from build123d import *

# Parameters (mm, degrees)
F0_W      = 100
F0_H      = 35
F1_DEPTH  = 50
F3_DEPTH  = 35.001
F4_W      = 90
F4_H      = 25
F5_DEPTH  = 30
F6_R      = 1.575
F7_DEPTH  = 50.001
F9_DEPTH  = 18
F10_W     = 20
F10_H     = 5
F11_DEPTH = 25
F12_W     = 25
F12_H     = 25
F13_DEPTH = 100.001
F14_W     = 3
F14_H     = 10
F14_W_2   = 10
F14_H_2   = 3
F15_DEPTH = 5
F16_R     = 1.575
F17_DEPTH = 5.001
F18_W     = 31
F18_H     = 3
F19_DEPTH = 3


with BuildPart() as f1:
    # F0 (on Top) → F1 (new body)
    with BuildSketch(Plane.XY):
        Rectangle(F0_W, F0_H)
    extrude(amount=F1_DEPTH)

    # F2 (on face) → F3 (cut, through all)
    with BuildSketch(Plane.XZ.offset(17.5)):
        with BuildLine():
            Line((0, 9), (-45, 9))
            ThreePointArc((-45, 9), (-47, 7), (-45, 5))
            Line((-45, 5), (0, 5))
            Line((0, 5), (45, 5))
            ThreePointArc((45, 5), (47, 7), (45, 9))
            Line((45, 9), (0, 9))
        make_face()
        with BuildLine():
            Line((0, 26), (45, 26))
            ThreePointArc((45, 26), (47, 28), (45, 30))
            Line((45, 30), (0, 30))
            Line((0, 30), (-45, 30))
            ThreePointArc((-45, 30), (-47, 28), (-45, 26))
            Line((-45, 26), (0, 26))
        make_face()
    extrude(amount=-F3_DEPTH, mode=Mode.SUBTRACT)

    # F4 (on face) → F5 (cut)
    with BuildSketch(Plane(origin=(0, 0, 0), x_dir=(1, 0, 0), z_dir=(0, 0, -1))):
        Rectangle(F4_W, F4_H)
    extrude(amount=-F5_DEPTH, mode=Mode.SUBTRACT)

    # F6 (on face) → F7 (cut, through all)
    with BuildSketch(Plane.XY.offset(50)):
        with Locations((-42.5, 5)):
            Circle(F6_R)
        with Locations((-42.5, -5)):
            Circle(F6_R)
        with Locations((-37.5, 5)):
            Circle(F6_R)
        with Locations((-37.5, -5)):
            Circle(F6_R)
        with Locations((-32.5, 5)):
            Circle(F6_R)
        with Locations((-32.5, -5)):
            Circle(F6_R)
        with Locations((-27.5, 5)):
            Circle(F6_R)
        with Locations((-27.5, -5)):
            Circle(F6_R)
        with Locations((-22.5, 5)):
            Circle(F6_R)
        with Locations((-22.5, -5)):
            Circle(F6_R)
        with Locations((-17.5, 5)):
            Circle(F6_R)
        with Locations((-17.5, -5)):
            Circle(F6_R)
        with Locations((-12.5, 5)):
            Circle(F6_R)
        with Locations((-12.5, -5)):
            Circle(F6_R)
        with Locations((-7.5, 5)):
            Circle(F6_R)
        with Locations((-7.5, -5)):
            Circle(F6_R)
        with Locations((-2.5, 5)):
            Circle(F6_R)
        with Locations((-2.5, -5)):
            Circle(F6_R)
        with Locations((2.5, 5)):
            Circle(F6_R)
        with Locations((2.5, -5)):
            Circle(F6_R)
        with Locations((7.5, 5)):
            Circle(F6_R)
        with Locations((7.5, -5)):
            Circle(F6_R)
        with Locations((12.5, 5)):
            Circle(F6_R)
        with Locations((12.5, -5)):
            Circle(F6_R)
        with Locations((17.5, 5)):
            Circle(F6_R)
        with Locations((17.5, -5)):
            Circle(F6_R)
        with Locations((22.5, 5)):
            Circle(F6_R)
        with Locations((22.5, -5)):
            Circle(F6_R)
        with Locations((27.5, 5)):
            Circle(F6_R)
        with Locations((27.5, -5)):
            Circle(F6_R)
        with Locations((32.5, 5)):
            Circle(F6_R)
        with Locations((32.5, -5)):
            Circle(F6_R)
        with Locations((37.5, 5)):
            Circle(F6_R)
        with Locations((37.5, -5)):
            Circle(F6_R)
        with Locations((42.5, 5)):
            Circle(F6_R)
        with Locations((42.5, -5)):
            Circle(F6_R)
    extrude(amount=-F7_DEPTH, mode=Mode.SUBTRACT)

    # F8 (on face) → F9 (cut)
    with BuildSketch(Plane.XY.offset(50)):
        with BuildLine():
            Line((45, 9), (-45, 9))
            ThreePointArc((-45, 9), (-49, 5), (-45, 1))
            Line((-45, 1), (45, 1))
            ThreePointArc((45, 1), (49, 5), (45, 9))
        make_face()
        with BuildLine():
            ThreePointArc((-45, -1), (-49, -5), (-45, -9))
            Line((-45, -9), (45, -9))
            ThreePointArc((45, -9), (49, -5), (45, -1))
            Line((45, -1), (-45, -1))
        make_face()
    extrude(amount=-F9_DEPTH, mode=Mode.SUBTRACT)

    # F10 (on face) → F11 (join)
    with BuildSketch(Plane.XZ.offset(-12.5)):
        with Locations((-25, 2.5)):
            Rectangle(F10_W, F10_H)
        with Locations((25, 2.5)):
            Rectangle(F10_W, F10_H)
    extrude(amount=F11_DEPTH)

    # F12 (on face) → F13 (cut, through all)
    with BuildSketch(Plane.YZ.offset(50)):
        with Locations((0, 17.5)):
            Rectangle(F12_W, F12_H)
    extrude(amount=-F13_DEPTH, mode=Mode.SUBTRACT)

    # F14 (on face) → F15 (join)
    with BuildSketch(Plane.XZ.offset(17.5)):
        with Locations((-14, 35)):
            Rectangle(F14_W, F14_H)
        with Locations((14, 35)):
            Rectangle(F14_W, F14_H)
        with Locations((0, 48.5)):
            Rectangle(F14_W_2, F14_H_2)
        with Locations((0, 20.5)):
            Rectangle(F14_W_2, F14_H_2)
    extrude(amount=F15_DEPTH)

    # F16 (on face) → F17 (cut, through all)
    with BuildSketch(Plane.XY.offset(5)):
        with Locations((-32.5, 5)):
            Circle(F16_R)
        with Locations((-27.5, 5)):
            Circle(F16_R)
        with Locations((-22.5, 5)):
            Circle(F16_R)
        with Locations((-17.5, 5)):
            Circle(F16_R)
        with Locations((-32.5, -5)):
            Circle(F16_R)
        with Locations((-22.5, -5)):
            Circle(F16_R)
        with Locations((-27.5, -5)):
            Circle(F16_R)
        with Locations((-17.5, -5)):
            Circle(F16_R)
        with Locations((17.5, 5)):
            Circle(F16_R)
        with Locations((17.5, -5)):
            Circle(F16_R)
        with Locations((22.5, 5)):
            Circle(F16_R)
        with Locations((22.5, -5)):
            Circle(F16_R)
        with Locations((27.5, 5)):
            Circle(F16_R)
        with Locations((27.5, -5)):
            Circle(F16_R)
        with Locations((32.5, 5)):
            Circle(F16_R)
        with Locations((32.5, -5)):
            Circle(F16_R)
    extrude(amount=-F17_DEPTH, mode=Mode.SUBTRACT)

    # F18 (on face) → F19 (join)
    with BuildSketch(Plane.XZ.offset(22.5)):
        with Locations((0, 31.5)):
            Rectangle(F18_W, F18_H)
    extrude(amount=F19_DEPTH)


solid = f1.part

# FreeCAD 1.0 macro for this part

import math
import FreeCAD as App
import Part
import Sketcher
from FreeCAD import Vector
Q = App.Units.Quantity

doc = App.newDocument("Part")
body = doc.addObject("PartDesign::Body", "Body")

# Sketch on XY plane
sketch1 = doc.addObject("Sketcher::SketchObject", "Sketch")
body.addObject(sketch1)
sketch1.AttachmentSupport = (doc.XY_Plane, [""])
sketch1.MapMode = "FlatFace"
sketch1.addGeometry([
    Part.LineSegment(Vector(-50, 18, 0), Vector(-50, -18, 0)),
    Part.LineSegment(Vector(-50, -18, 0), Vector(50, -18, 0)),
    Part.LineSegment(Vector(50, -18, 0), Vector(50, 18, 0)),
    Part.LineSegment(Vector(50, 18, 0), Vector(-50, 18, 0)),
], False)
sketch1.addConstraint([
    Sketcher.Constraint("Coincident", 0, 2, 1, 1),
    Sketcher.Constraint("Coincident", 1, 2, 2, 1),
    Sketcher.Constraint("Coincident", 2, 2, 3, 1),
    Sketcher.Constraint("Coincident", 3, 2, 0, 1),
    Sketcher.Constraint("Vertical", 0),
    Sketcher.Constraint("Horizontal", 1),
    Sketcher.Constraint("Vertical", 2),
    Sketcher.Constraint("Horizontal", 3),
    Sketcher.Constraint("Symmetric", 0, 2, 2, 2, -1, 1),
    Sketcher.Constraint("DistanceX", 1, 1, 1, 2, Q("100 mm")),
    Sketcher.Constraint("DistanceY", 0, 2, 0, 1, Q("35 mm")),
])
pad1 = doc.addObject("PartDesign::Pad", "Pad")
body.addObject(pad1)
pad1.Profile = sketch1
pad1.Length = 50

# Sketch on XZ plane
sketch2 = doc.addObject("Sketcher::SketchObject", "Sketch001")
body.addObject(sketch2)
sketch2.AttachmentSupport = (doc.XZ_Plane, [""])
sketch2.MapMode = "FlatFace"
sketch2.AttachmentOffset = App.Placement(Vector(0, 0, 17.5), App.Rotation())
sketch2.addGeometry([
    Part.ArcOfCircle(Part.Circle(Vector(-45, 7, 0), Vector(0, 0, 1), 2), math.radians(90), math.radians(270)),  # 0
    Part.LineSegment(Vector(-45, 5, 0), Vector(45, 5, 0)),  # 1
    Part.ArcOfCircle(Part.Circle(Vector(45, 7, 0), Vector(0, 0, 1), 2), math.radians(-90), math.radians(90)),  # 2
    Part.LineSegment(Vector(45, 9, 0), Vector(-45, 9, 0)),  # 3
    Part.ArcOfCircle(Part.Circle(Vector(45, 28, 0), Vector(0, 0, 1), 2), math.radians(-90), math.radians(90)),  # 4
    Part.LineSegment(Vector(45, 30, 0), Vector(-45, 30, 0)),  # 5
    Part.ArcOfCircle(Part.Circle(Vector(-45, 28, 0), Vector(0, 0, 1), 2), math.radians(90), math.radians(270)),  # 6
    Part.LineSegment(Vector(-45, 26, 0), Vector(45, 26, 0)),  # 7
], False)
sketch2.addConstraint([
    Sketcher.Constraint("Tangent", 0, 2, 1, 1),
    Sketcher.Constraint("Tangent", 1, 2, 2, 1),
    Sketcher.Constraint("Tangent", 2, 2, 3, 1),
    Sketcher.Constraint("Tangent", 3, 2, 0, 1),
    Sketcher.Constraint("Tangent", 4, 2, 5, 1),
    Sketcher.Constraint("Tangent", 5, 2, 6, 1),
    Sketcher.Constraint("Tangent", 6, 2, 7, 1),
    Sketcher.Constraint("Tangent", 7, 2, 4, 1),
    Sketcher.Constraint("Horizontal", 1),
    Sketcher.Constraint("Horizontal", 3),
    Sketcher.Constraint("Horizontal", 5),
    Sketcher.Constraint("Horizontal", 7),
    Sketcher.Constraint("Equal", 2, 4),
    Sketcher.Constraint("Vertical", 2, 3, 4, 3),
    Sketcher.Constraint("Vertical", 0, 3, 6, 3),
    Sketcher.Constraint("Radius", 0, Q("2 mm")),
    Sketcher.Constraint("DistanceX", 1, 1, 1, 2, Q("90 mm")),
    Sketcher.Constraint("DistanceX", 0, 3, -1, 1, Q("45 mm")),
    Sketcher.Constraint("DistanceY", -1, 1, 0, 3, Q("7 mm")),
    Sketcher.Constraint("DistanceY", -1, 1, 4, 3, Q("28 mm")),
])
pocket1 = doc.addObject("PartDesign::Pocket", "Pocket")
body.addObject(pocket1)
pocket1.Profile = sketch2
pocket1.Type = "ThroughAll"

# Sketch on XY plane
sketch3 = doc.addObject("Sketcher::SketchObject", "Sketch002")
body.addObject(sketch3)
sketch3.AttachmentSupport = (doc.XY_Plane, [""])
sketch3.MapMode = "FlatFace"
sketch3.addGeometry([
    Part.LineSegment(Vector(-45, -12, 0), Vector(-45, 12, 0)),
    Part.LineSegment(Vector(-45, 12, 0), Vector(45, 12, 0)),
    Part.LineSegment(Vector(45, 12, 0), Vector(45, -12, 0)),
    Part.LineSegment(Vector(45, -12, 0), Vector(-45, -12, 0)),
], False)
sketch3.addConstraint([
    Sketcher.Constraint("Coincident", 0, 2, 1, 1),
    Sketcher.Constraint("Coincident", 1, 2, 2, 1),
    Sketcher.Constraint("Coincident", 2, 2, 3, 1),
    Sketcher.Constraint("Coincident", 3, 2, 0, 1),
    Sketcher.Constraint("Vertical", 0),
    Sketcher.Constraint("Horizontal", 1),
    Sketcher.Constraint("Vertical", 2),
    Sketcher.Constraint("Horizontal", 3),
    Sketcher.Constraint("Symmetric", 0, 2, 2, 2, -1, 1),
    Sketcher.Constraint("DistanceX", 1, 1, 1, 2, Q("90 mm")),
    Sketcher.Constraint("DistanceY", 0, 1, 0, 2, Q("25 mm")),
])
pocket2 = doc.addObject("PartDesign::Pocket", "Pocket001")
body.addObject(pocket2)
pocket2.Profile = sketch3
pocket2.Length = 30
pocket2.Reversed = True

# Sketch on XY plane
sketch4 = doc.addObject("Sketcher::SketchObject", "Sketch003")
body.addObject(sketch4)
sketch4.AttachmentSupport = (doc.XY_Plane, [""])
sketch4.MapMode = "FlatFace"
sketch4.AttachmentOffset = App.Placement(Vector(0, 0, 50), App.Rotation())
sketch4.addGeometry([
    Part.Circle(Vector(-42.5, 5, 0), Vector(0, 0, 1), 1.6),  # 0
    Part.Circle(Vector(-42.5, -5, 0), Vector(0, 0, 1), 1.6),  # 1
    Part.Circle(Vector(-37.5, 5, 0), Vector(0, 0, 1), 1.6),  # 2
    Part.Circle(Vector(-37.5, -5, 0), Vector(0, 0, 1), 1.6),  # 3
    Part.Circle(Vector(-32.5, 5, 0), Vector(0, 0, 1), 1.6),  # 4
    Part.Circle(Vector(-32.5, -5, 0), Vector(0, 0, 1), 1.6),  # 5
    Part.Circle(Vector(-27.5, 5, 0), Vector(0, 0, 1), 1.6),  # 6
    Part.Circle(Vector(-27.5, -5, 0), Vector(0, 0, 1), 1.6),  # 7
    Part.Circle(Vector(-22.5, 5, 0), Vector(0, 0, 1), 1.6),  # 8
    Part.Circle(Vector(-22.5, -5, 0), Vector(0, 0, 1), 1.6),  # 9
    Part.Circle(Vector(-17.5, 5, 0), Vector(0, 0, 1), 1.6),  # 10
    Part.Circle(Vector(-17.5, -5, 0), Vector(0, 0, 1), 1.6),  # 11
    Part.Circle(Vector(-12.5, 5, 0), Vector(0, 0, 1), 1.6),  # 12
    Part.Circle(Vector(-12.5, -5, 0), Vector(0, 0, 1), 1.6),  # 13
    Part.Circle(Vector(-7.5, 5, 0), Vector(0, 0, 1), 1.6),  # 14
    Part.Circle(Vector(-7.5, -5, 0), Vector(0, 0, 1), 1.6),  # 15
    Part.Circle(Vector(-2.5, 5, 0), Vector(0, 0, 1), 1.6),  # 16
    Part.Circle(Vector(-2.5, -5, 0), Vector(0, 0, 1), 1.6),  # 17
    Part.Circle(Vector(2.5, 5, 0), Vector(0, 0, 1), 1.6),  # 18
    Part.Circle(Vector(2.5, -5, 0), Vector(0, 0, 1), 1.6),  # 19
    Part.Circle(Vector(7.5, 5, 0), Vector(0, 0, 1), 1.6),  # 20
    Part.Circle(Vector(7.5, -5, 0), Vector(0, 0, 1), 1.6),  # 21
    Part.Circle(Vector(12.5, 5, 0), Vector(0, 0, 1), 1.6),  # 22
    Part.Circle(Vector(12.5, -5, 0), Vector(0, 0, 1), 1.6),  # 23
    Part.Circle(Vector(17.5, 5, 0), Vector(0, 0, 1), 1.6),  # 24
    Part.Circle(Vector(17.5, -5, 0), Vector(0, 0, 1), 1.6),  # 25
    Part.Circle(Vector(22.5, 5, 0), Vector(0, 0, 1), 1.6),  # 26
    Part.Circle(Vector(22.5, -5, 0), Vector(0, 0, 1), 1.6),  # 27
    Part.Circle(Vector(27.5, 5, 0), Vector(0, 0, 1), 1.6),  # 28
    Part.Circle(Vector(27.5, -5, 0), Vector(0, 0, 1), 1.6),  # 29
    Part.Circle(Vector(32.5, 5, 0), Vector(0, 0, 1), 1.6),  # 30
    Part.Circle(Vector(32.5, -5, 0), Vector(0, 0, 1), 1.6),  # 31
    Part.Circle(Vector(37.5, 5, 0), Vector(0, 0, 1), 1.6),  # 32
    Part.Circle(Vector(37.5, -5, 0), Vector(0, 0, 1), 1.6),  # 33
    Part.Circle(Vector(42.5, 5, 0), Vector(0, 0, 1), 1.6),  # 34
    Part.Circle(Vector(42.5, -5, 0), Vector(0, 0, 1), 1.6),  # 35
], False)
sketch4.addConstraint([
    Sketcher.Constraint("Equal", 0, 1),
    Sketcher.Constraint("Equal", 1, 2),
    Sketcher.Constraint("Equal", 2, 3),
    Sketcher.Constraint("Equal", 3, 4),
    Sketcher.Constraint("Equal", 4, 5),
    Sketcher.Constraint("Equal", 5, 6),
    Sketcher.Constraint("Equal", 6, 7),
    Sketcher.Constraint("Equal", 7, 8),
    Sketcher.Constraint("Equal", 8, 9),
    Sketcher.Constraint("Equal", 9, 10),
    Sketcher.Constraint("Equal", 10, 11),
    Sketcher.Constraint("Equal", 11, 12),
    Sketcher.Constraint("Equal", 12, 13),
    Sketcher.Constraint("Equal", 13, 14),
    Sketcher.Constraint("Equal", 14, 15),
    Sketcher.Constraint("Equal", 15, 16),
    Sketcher.Constraint("Equal", 16, 17),
    Sketcher.Constraint("Equal", 17, 18),
    Sketcher.Constraint("Equal", 18, 19),
    Sketcher.Constraint("Equal", 19, 20),
    Sketcher.Constraint("Equal", 20, 21),
    Sketcher.Constraint("Equal", 21, 22),
    Sketcher.Constraint("Equal", 22, 23),
    Sketcher.Constraint("Equal", 23, 24),
    Sketcher.Constraint("Equal", 24, 25),
    Sketcher.Constraint("Equal", 25, 26),
    Sketcher.Constraint("Equal", 26, 27),
    Sketcher.Constraint("Equal", 27, 28),
    Sketcher.Constraint("Equal", 28, 29),
    Sketcher.Constraint("Equal", 29, 30),
    Sketcher.Constraint("Equal", 30, 31),
    Sketcher.Constraint("Equal", 31, 32),
    Sketcher.Constraint("Equal", 32, 33),
    Sketcher.Constraint("Equal", 33, 34),
    Sketcher.Constraint("Equal", 34, 35),
    Sketcher.Constraint("Symmetric", 17, 3, 18, 3, -1, 1),
    Sketcher.Constraint("Symmetric", 16, 3, 19, 3, -1, 1),
    Sketcher.Constraint("Symmetric", 15, 3, 20, 3, -1, 1),
    Sketcher.Constraint("Symmetric", 14, 3, 21, 3, -1, 1),
    Sketcher.Constraint("Symmetric", 13, 3, 22, 3, -1, 1),
    Sketcher.Constraint("Symmetric", 12, 3, 23, 3, -1, 1),
    Sketcher.Constraint("Symmetric", 11, 3, 24, 3, -1, 1),
    Sketcher.Constraint("Symmetric", 10, 3, 25, 3, -1, 1),
    Sketcher.Constraint("Symmetric", 9, 3, 26, 3, -1, 1),
    Sketcher.Constraint("Symmetric", 8, 3, 27, 3, -1, 1),
    Sketcher.Constraint("Symmetric", 7, 3, 28, 3, -1, 1),
    Sketcher.Constraint("Symmetric", 6, 3, 29, 3, -1, 1),
    Sketcher.Constraint("Symmetric", 5, 3, 30, 3, -1, 1),
    Sketcher.Constraint("Symmetric", 4, 3, 31, 3, -1, 1),
    Sketcher.Constraint("Symmetric", 3, 3, 32, 3, -1, 1),
    Sketcher.Constraint("Symmetric", 2, 3, 33, 3, -1, 1),
    Sketcher.Constraint("Symmetric", 1, 3, 34, 3, -1, 1),
    Sketcher.Constraint("Symmetric", 0, 3, 35, 3, -1, 1),
    Sketcher.Constraint("Symmetric", 16, 3, 18, 3, -2),
    Sketcher.Constraint("Symmetric", 14, 3, 20, 3, -2),
    Sketcher.Constraint("Symmetric", 12, 3, 22, 3, -2),
    Sketcher.Constraint("Symmetric", 10, 3, 24, 3, -2),
    Sketcher.Constraint("Symmetric", 8, 3, 26, 3, -2),
    Sketcher.Constraint("Symmetric", 6, 3, 28, 3, -2),
    Sketcher.Constraint("Symmetric", 4, 3, 30, 3, -2),
    Sketcher.Constraint("Symmetric", 2, 3, 32, 3, -2),
    Sketcher.Constraint("Symmetric", 0, 3, 34, 3, -2),
    Sketcher.Constraint("Horizontal", 0, 3, 2, 3),
    Sketcher.Constraint("Horizontal", 2, 3, 4, 3),
    Sketcher.Constraint("Horizontal", 4, 3, 6, 3),
    Sketcher.Constraint("Horizontal", 6, 3, 8, 3),
    Sketcher.Constraint("Horizontal", 8, 3, 10, 3),
    Sketcher.Constraint("Horizontal", 10, 3, 12, 3),
    Sketcher.Constraint("Horizontal", 12, 3, 14, 3),
    Sketcher.Constraint("Horizontal", 14, 3, 16, 3),
    Sketcher.Constraint("Diameter", 0, Q("3.15 mm")),
    Sketcher.Constraint("DistanceY", -1, 1, 0, 3, Q("5 mm")),
    Sketcher.Constraint("DistanceX", 0, 3, 2, 3, Q("5 mm")),
    Sketcher.Constraint("DistanceX", 2, 3, 4, 3, Q("5 mm")),
    Sketcher.Constraint("DistanceX", 4, 3, 6, 3, Q("5 mm")),
    Sketcher.Constraint("DistanceX", 6, 3, 8, 3, Q("5 mm")),
    Sketcher.Constraint("DistanceX", 8, 3, 10, 3, Q("5 mm")),
    Sketcher.Constraint("DistanceX", 10, 3, 12, 3, Q("5 mm")),
    Sketcher.Constraint("DistanceX", 12, 3, 14, 3, Q("5 mm")),
    Sketcher.Constraint("DistanceX", 14, 3, 16, 3, Q("5 mm")),
    Sketcher.Constraint("DistanceX", 16, 3, 18, 3, Q("5 mm")),
])
pocket3 = doc.addObject("PartDesign::Pocket", "Pocket002")
body.addObject(pocket3)
pocket3.Profile = sketch4
pocket3.Type = "ThroughAll"

# Sketch on XY plane
sketch5 = doc.addObject("Sketcher::SketchObject", "Sketch004")
body.addObject(sketch5)
sketch5.AttachmentSupport = (doc.XY_Plane, [""])
sketch5.MapMode = "FlatFace"
sketch5.AttachmentOffset = App.Placement(Vector(0, 0, 50), App.Rotation())
sketch5.addGeometry([
    Part.LineSegment(Vector(45, 9, 0), Vector(-45, 9, 0)),  # 0
    Part.ArcOfCircle(Part.Circle(Vector(-45, 5, 0), Vector(0, 0, 1), 4), math.radians(90), math.radians(270)),  # 1
    Part.LineSegment(Vector(-45, 1, 0), Vector(45, 1, 0)),  # 2
    Part.ArcOfCircle(Part.Circle(Vector(45, 5, 0), Vector(0, 0, 1), 4), math.radians(-90), math.radians(90)),  # 3
    Part.ArcOfCircle(Part.Circle(Vector(-45, -5, 0), Vector(0, 0, 1), 4), math.radians(90), math.radians(270)),  # 4
    Part.LineSegment(Vector(-45, -9, 0), Vector(45, -9, 0)),  # 5
    Part.ArcOfCircle(Part.Circle(Vector(45, -5, 0), Vector(0, 0, 1), 4), math.radians(-90), math.radians(90)),  # 6
    Part.LineSegment(Vector(45, -1, 0), Vector(-45, -1, 0)),  # 7
], False)
sketch5.addConstraint([
    Sketcher.Constraint("Tangent", 0, 2, 1, 1),
    Sketcher.Constraint("Tangent", 1, 2, 2, 1),
    Sketcher.Constraint("Tangent", 2, 2, 3, 1),
    Sketcher.Constraint("Tangent", 3, 2, 0, 1),
    Sketcher.Constraint("Tangent", 4, 2, 5, 1),
    Sketcher.Constraint("Tangent", 5, 2, 6, 1),
    Sketcher.Constraint("Tangent", 6, 2, 7, 1),
    Sketcher.Constraint("Tangent", 7, 2, 4, 1),
    Sketcher.Constraint("Horizontal", 0),
    Sketcher.Constraint("Horizontal", 2),
    Sketcher.Constraint("Horizontal", 5),
    Sketcher.Constraint("Horizontal", 7),
    Sketcher.Constraint("Equal", 3, 4),
    Sketcher.Constraint("Symmetric", 3, 3, 4, 3, -1, 1),
    Sketcher.Constraint("Vertical", 1, 3, 4, 3),
    Sketcher.Constraint("Vertical", 3, 3, 6, 3),
    Sketcher.Constraint("Radius", 1, Q("4 mm")),
    Sketcher.Constraint("DistanceX", 0, 2, 0, 1, Q("90 mm")),
    Sketcher.Constraint("DistanceY", -1, 1, 1, 3, Q("5 mm")),
])
pocket4 = doc.addObject("PartDesign::Pocket", "Pocket003")
body.addObject(pocket4)
pocket4.Profile = sketch5
pocket4.Length = 18

# Sketch on XZ plane
sketch6 = doc.addObject("Sketcher::SketchObject", "Sketch005")
body.addObject(sketch6)
sketch6.AttachmentSupport = (doc.XZ_Plane, [""])
sketch6.MapMode = "FlatFace"
sketch6.AttachmentOffset = App.Placement(Vector(0, 0, -12.5), App.Rotation())
sketch6.addGeometry([
    Part.LineSegment(Vector(-35, 5, 0), Vector(-35, 0, 0)),  # 0
    Part.LineSegment(Vector(-35, 0, 0), Vector(-15, 0, 0)),  # 1
    Part.LineSegment(Vector(-15, 0, 0), Vector(-15, 5, 0)),  # 2
    Part.LineSegment(Vector(-15, 5, 0), Vector(-35, 5, 0)),  # 3
    Part.LineSegment(Vector(15, 5, 0), Vector(15, 0, 0)),  # 4
    Part.LineSegment(Vector(15, 0, 0), Vector(35, 0, 0)),  # 5
    Part.LineSegment(Vector(35, 0, 0), Vector(35, 5, 0)),  # 6
    Part.LineSegment(Vector(35, 5, 0), Vector(15, 5, 0)),  # 7
], False)
sketch6.addConstraint([
    Sketcher.Constraint("Coincident", 0, 2, 1, 1),
    Sketcher.Constraint("Coincident", 1, 2, 2, 1),
    Sketcher.Constraint("Coincident", 2, 2, 3, 1),
    Sketcher.Constraint("Coincident", 3, 2, 0, 1),
    Sketcher.Constraint("Coincident", 4, 2, 5, 1),
    Sketcher.Constraint("Coincident", 5, 2, 6, 1),
    Sketcher.Constraint("Coincident", 6, 2, 7, 1),
    Sketcher.Constraint("Coincident", 7, 2, 4, 1),
    Sketcher.Constraint("Vertical", 0),
    Sketcher.Constraint("Horizontal", 1),
    Sketcher.Constraint("Vertical", 2),
    Sketcher.Constraint("Horizontal", 3),
    Sketcher.Constraint("Vertical", 4),
    Sketcher.Constraint("Horizontal", 5),
    Sketcher.Constraint("Vertical", 6),
    Sketcher.Constraint("Horizontal", 7),
    Sketcher.Constraint("Symmetric", 1, 2, 4, 2, -1, 1),
    Sketcher.Constraint("Symmetric", 0, 2, 5, 2, -2),
    Sketcher.Constraint("Horizontal", 3, 2, 6, 2),
    Sketcher.Constraint("DistanceX", 1, 1, 1, 2, Q("20 mm")),
    Sketcher.Constraint("DistanceY", 0, 2, 0, 1, Q("5 mm")),
    Sketcher.Constraint("DistanceX", 0, 2, -1, 1, Q("35 mm")),
])
pad2 = doc.addObject("PartDesign::Pad", "Pad001")
body.addObject(pad2)
pad2.Profile = sketch6
pad2.Length = 25

# Sketch on YZ plane
sketch7 = doc.addObject("Sketcher::SketchObject", "Sketch006")
body.addObject(sketch7)
sketch7.AttachmentSupport = (doc.YZ_Plane, [""])
sketch7.MapMode = "FlatFace"
sketch7.AttachmentOffset = App.Placement(Vector(0, 0, 50), App.Rotation())
sketch7.addGeometry([
    Part.LineSegment(Vector(-12, 30, 0), Vector(-12, 5, 0)),
    Part.LineSegment(Vector(-12, 5, 0), Vector(12, 5, 0)),
    Part.LineSegment(Vector(12, 5, 0), Vector(12, 30, 0)),
    Part.LineSegment(Vector(12, 30, 0), Vector(-12, 30, 0)),
], False)
sketch7.addConstraint([
    Sketcher.Constraint("Coincident", 0, 2, 1, 1),
    Sketcher.Constraint("Coincident", 1, 2, 2, 1),
    Sketcher.Constraint("Coincident", 2, 2, 3, 1),
    Sketcher.Constraint("Coincident", 3, 2, 0, 1),
    Sketcher.Constraint("Vertical", 0),
    Sketcher.Constraint("Horizontal", 1),
    Sketcher.Constraint("Vertical", 2),
    Sketcher.Constraint("Horizontal", 3),
    Sketcher.Constraint("Equal", 3, 0),
    Sketcher.Constraint("DistanceX", 1, 1, 1, 2, Q("25 mm")),
    Sketcher.Constraint("DistanceY", -1, 1, 0, 2, Q("5 mm")),
    Sketcher.Constraint("DistanceX", 0, 2, -1, 1, Q("12.5 mm")),
])
pocket5 = doc.addObject("PartDesign::Pocket", "Pocket004")
body.addObject(pocket5)
pocket5.Profile = sketch7
pocket5.Type = "ThroughAll"

# Sketch on XZ plane
sketch8 = doc.addObject("Sketcher::SketchObject", "Sketch007")
body.addObject(sketch8)
sketch8.AttachmentSupport = (doc.XZ_Plane, [""])
sketch8.MapMode = "FlatFace"
sketch8.AttachmentOffset = App.Placement(Vector(0, 0, 17.5), App.Rotation())
sketch8.addGeometry([
    Part.LineSegment(Vector(-15.5, 40, 0), Vector(-15.5, 30, 0)),  # 0
    Part.LineSegment(Vector(-15.5, 30, 0), Vector(-12.5, 30, 0)),  # 1
    Part.LineSegment(Vector(-12.5, 30, 0), Vector(-12.5, 40, 0)),  # 2
    Part.LineSegment(Vector(-12.5, 40, 0), Vector(-15.5, 40, 0)),  # 3
    Part.LineSegment(Vector(12.5, 40, 0), Vector(12.5, 30, 0)),  # 4
    Part.LineSegment(Vector(12.5, 30, 0), Vector(15.5, 30, 0)),  # 5
    Part.LineSegment(Vector(15.5, 30, 0), Vector(15.5, 40, 0)),  # 6
    Part.LineSegment(Vector(15.5, 40, 0), Vector(12.5, 40, 0)),  # 7
    Part.LineSegment(Vector(-5, 50, 0), Vector(-5, 47, 0)),  # 8
    Part.LineSegment(Vector(-5, 47, 0), Vector(5, 47, 0)),  # 9
    Part.LineSegment(Vector(5, 47, 0), Vector(5, 50, 0)),  # 10
    Part.LineSegment(Vector(5, 50, 0), Vector(-5, 50, 0)),  # 11
    Part.LineSegment(Vector(-5, 22, 0), Vector(-5, 19, 0)),  # 12
    Part.LineSegment(Vector(-5, 19, 0), Vector(5, 19, 0)),  # 13
    Part.LineSegment(Vector(5, 19, 0), Vector(5, 22, 0)),  # 14
    Part.LineSegment(Vector(5, 22, 0), Vector(-5, 22, 0)),  # 15
], False)
sketch8.addConstraint([
    Sketcher.Constraint("Coincident", 0, 2, 1, 1),
    Sketcher.Constraint("Coincident", 1, 2, 2, 1),
    Sketcher.Constraint("Coincident", 2, 2, 3, 1),
    Sketcher.Constraint("Coincident", 3, 2, 0, 1),
    Sketcher.Constraint("Coincident", 4, 2, 5, 1),
    Sketcher.Constraint("Coincident", 5, 2, 6, 1),
    Sketcher.Constraint("Coincident", 6, 2, 7, 1),
    Sketcher.Constraint("Coincident", 7, 2, 4, 1),
    Sketcher.Constraint("Coincident", 8, 2, 9, 1),
    Sketcher.Constraint("Coincident", 9, 2, 10, 1),
    Sketcher.Constraint("Coincident", 10, 2, 11, 1),
    Sketcher.Constraint("Coincident", 11, 2, 8, 1),
    Sketcher.Constraint("Coincident", 12, 2, 13, 1),
    Sketcher.Constraint("Coincident", 13, 2, 14, 1),
    Sketcher.Constraint("Coincident", 14, 2, 15, 1),
    Sketcher.Constraint("Coincident", 15, 2, 12, 1),
    Sketcher.Constraint("Vertical", 0),
    Sketcher.Constraint("Horizontal", 1),
    Sketcher.Constraint("Vertical", 2),
    Sketcher.Constraint("Horizontal", 3),
    Sketcher.Constraint("Vertical", 4),
    Sketcher.Constraint("Horizontal", 5),
    Sketcher.Constraint("Vertical", 6),
    Sketcher.Constraint("Horizontal", 7),
    Sketcher.Constraint("Vertical", 8),
    Sketcher.Constraint("Horizontal", 9),
    Sketcher.Constraint("Vertical", 10),
    Sketcher.Constraint("Horizontal", 11),
    Sketcher.Constraint("Vertical", 12),
    Sketcher.Constraint("Horizontal", 13),
    Sketcher.Constraint("Vertical", 14),
    Sketcher.Constraint("Horizontal", 15),
    Sketcher.Constraint("Symmetric", 1, 2, 4, 2, -2),
    Sketcher.Constraint("Symmetric", 3, 2, 6, 2, -2),
    Sketcher.Constraint("Vertical", 11, 2, 12, 2),
    Sketcher.Constraint("Vertical", 10, 2, 13, 2),
    Sketcher.Constraint("Equal", 15, 0),
    Sketcher.Constraint("Equal", 7, 8),
    Sketcher.Constraint("Equal", 10, 12),
    Sketcher.Constraint("DistanceX", 1, 1, 1, 2, Q("3 mm")),
    Sketcher.Constraint("DistanceX", 9, 1, 9, 2, Q("10 mm")),
    Sketcher.Constraint("DistanceY", -1, 1, 0, 2, Q("30 mm")),
    Sketcher.Constraint("DistanceX", 8, 2, -1, 1, Q("5 mm")),
    Sketcher.Constraint("DistanceY", -1, 1, 8, 2, Q("47 mm")),
    Sketcher.Constraint("DistanceY", -1, 1, 12, 2, Q("19 mm")),
    Sketcher.Constraint("DistanceX", 1, 2, 4, 2, Q("25 mm")),
])
pad3 = doc.addObject("PartDesign::Pad", "Pad002")
body.addObject(pad3)
pad3.Profile = sketch8
pad3.Length = 5

# Sketch on XY plane
sketch9 = doc.addObject("Sketcher::SketchObject", "Sketch008")
body.addObject(sketch9)
sketch9.AttachmentSupport = (doc.XY_Plane, [""])
sketch9.MapMode = "FlatFace"
sketch9.AttachmentOffset = App.Placement(Vector(0, 0, 5), App.Rotation())
sketch9.addGeometry([
    Part.Circle(Vector(-32.5, 5, 0), Vector(0, 0, 1), 1.6),  # 0
    Part.Circle(Vector(-27.5, 5, 0), Vector(0, 0, 1), 1.6),  # 1
    Part.Circle(Vector(-22.5, 5, 0), Vector(0, 0, 1), 1.6),  # 2
    Part.Circle(Vector(-17.5, 5, 0), Vector(0, 0, 1), 1.6),  # 3
    Part.Circle(Vector(-32.5, -5, 0), Vector(0, 0, 1), 1.6),  # 4
    Part.Circle(Vector(-22.5, -5, 0), Vector(0, 0, 1), 1.6),  # 5
    Part.Circle(Vector(-27.5, -5, 0), Vector(0, 0, 1), 1.6),  # 6
    Part.Circle(Vector(-17.5, -5, 0), Vector(0, 0, 1), 1.6),  # 7
    Part.Circle(Vector(17.5, 5, 0), Vector(0, 0, 1), 1.6),  # 8
    Part.Circle(Vector(17.5, -5, 0), Vector(0, 0, 1), 1.6),  # 9
    Part.Circle(Vector(22.5, 5, 0), Vector(0, 0, 1), 1.6),  # 10
    Part.Circle(Vector(22.5, -5, 0), Vector(0, 0, 1), 1.6),  # 11
    Part.Circle(Vector(27.5, 5, 0), Vector(0, 0, 1), 1.6),  # 12
    Part.Circle(Vector(27.5, -5, 0), Vector(0, 0, 1), 1.6),  # 13
    Part.Circle(Vector(32.5, 5, 0), Vector(0, 0, 1), 1.6),  # 14
    Part.Circle(Vector(32.5, -5, 0), Vector(0, 0, 1), 1.6),  # 15
], False)
sketch9.addConstraint([
    Sketcher.Constraint("Equal", 0, 1),
    Sketcher.Constraint("Equal", 1, 2),
    Sketcher.Constraint("Equal", 2, 3),
    Sketcher.Constraint("Equal", 3, 4),
    Sketcher.Constraint("Equal", 4, 5),
    Sketcher.Constraint("Equal", 5, 6),
    Sketcher.Constraint("Equal", 6, 7),
    Sketcher.Constraint("Equal", 7, 8),
    Sketcher.Constraint("Equal", 8, 9),
    Sketcher.Constraint("Equal", 9, 10),
    Sketcher.Constraint("Equal", 10, 11),
    Sketcher.Constraint("Equal", 11, 12),
    Sketcher.Constraint("Equal", 12, 13),
    Sketcher.Constraint("Equal", 13, 14),
    Sketcher.Constraint("Equal", 14, 15),
    Sketcher.Constraint("Symmetric", 7, 3, 8, 3, -1, 1),
    Sketcher.Constraint("Symmetric", 3, 3, 9, 3, -1, 1),
    Sketcher.Constraint("Symmetric", 5, 3, 10, 3, -1, 1),
    Sketcher.Constraint("Symmetric", 2, 3, 11, 3, -1, 1),
    Sketcher.Constraint("Symmetric", 6, 3, 12, 3, -1, 1),
    Sketcher.Constraint("Symmetric", 1, 3, 13, 3, -1, 1),
    Sketcher.Constraint("Symmetric", 4, 3, 14, 3, -1, 1),
    Sketcher.Constraint("Symmetric", 0, 3, 15, 3, -1, 1),
    Sketcher.Constraint("Symmetric", 3, 3, 8, 3, -2),
    Sketcher.Constraint("Symmetric", 2, 3, 10, 3, -2),
    Sketcher.Constraint("Symmetric", 1, 3, 12, 3, -2),
    Sketcher.Constraint("Symmetric", 0, 3, 14, 3, -2),
    Sketcher.Constraint("Horizontal", 0, 3, 1, 3),
    Sketcher.Constraint("Horizontal", 1, 3, 2, 3),
    Sketcher.Constraint("Horizontal", 2, 3, 3, 3),
    Sketcher.Constraint("Diameter", 0, Q("3.15 mm")),
    Sketcher.Constraint("DistanceY", -1, 1, 0, 3, Q("5 mm")),
    Sketcher.Constraint("DistanceX", 0, 3, 1, 3, Q("5 mm")),
    Sketcher.Constraint("DistanceX", 1, 3, 2, 3, Q("5 mm")),
    Sketcher.Constraint("DistanceX", 2, 3, 3, 3, Q("5 mm")),
    Sketcher.Constraint("DistanceX", 3, 3, 8, 3, Q("35 mm")),
])
pocket6 = doc.addObject("PartDesign::Pocket", "Pocket005")
body.addObject(pocket6)
pocket6.Profile = sketch9
pocket6.Type = "ThroughAll"

# Sketch on XZ plane
sketch10 = doc.addObject("Sketcher::SketchObject", "Sketch009")
body.addObject(sketch10)
sketch10.AttachmentSupport = (doc.XZ_Plane, [""])
sketch10.MapMode = "FlatFace"
sketch10.AttachmentOffset = App.Placement(Vector(0, 0, 22.5), App.Rotation())
sketch10.addGeometry([
    Part.LineSegment(Vector(-15.5, 33, 0), Vector(-15.5, 30, 0)),
    Part.LineSegment(Vector(-15.5, 30, 0), Vector(15.5, 30, 0)),
    Part.LineSegment(Vector(15.5, 30, 0), Vector(15.5, 33, 0)),
    Part.LineSegment(Vector(15.5, 33, 0), Vector(-15.5, 33, 0)),
], False)
sketch10.addConstraint([
    Sketcher.Constraint("Coincident", 0, 2, 1, 1),
    Sketcher.Constraint("Coincident", 1, 2, 2, 1),
    Sketcher.Constraint("Coincident", 2, 2, 3, 1),
    Sketcher.Constraint("Coincident", 3, 2, 0, 1),
    Sketcher.Constraint("Vertical", 0),
    Sketcher.Constraint("Horizontal", 1),
    Sketcher.Constraint("Vertical", 2),
    Sketcher.Constraint("Horizontal", 3),
    Sketcher.Constraint("DistanceX", 1, 1, 1, 2, Q("31 mm")),
    Sketcher.Constraint("DistanceY", 0, 2, 0, 1, Q("3 mm")),
    Sketcher.Constraint("DistanceY", -1, 1, 0, 2, Q("30 mm")),
    Sketcher.Constraint("DistanceX", 0, 2, -1, 1, Q("15.5 mm")),
])
pad4 = doc.addObject("PartDesign::Pad", "Pad003")
body.addObject(pad4)
pad4.Profile = sketch10
pad4.Length = 3

doc.recompute()
